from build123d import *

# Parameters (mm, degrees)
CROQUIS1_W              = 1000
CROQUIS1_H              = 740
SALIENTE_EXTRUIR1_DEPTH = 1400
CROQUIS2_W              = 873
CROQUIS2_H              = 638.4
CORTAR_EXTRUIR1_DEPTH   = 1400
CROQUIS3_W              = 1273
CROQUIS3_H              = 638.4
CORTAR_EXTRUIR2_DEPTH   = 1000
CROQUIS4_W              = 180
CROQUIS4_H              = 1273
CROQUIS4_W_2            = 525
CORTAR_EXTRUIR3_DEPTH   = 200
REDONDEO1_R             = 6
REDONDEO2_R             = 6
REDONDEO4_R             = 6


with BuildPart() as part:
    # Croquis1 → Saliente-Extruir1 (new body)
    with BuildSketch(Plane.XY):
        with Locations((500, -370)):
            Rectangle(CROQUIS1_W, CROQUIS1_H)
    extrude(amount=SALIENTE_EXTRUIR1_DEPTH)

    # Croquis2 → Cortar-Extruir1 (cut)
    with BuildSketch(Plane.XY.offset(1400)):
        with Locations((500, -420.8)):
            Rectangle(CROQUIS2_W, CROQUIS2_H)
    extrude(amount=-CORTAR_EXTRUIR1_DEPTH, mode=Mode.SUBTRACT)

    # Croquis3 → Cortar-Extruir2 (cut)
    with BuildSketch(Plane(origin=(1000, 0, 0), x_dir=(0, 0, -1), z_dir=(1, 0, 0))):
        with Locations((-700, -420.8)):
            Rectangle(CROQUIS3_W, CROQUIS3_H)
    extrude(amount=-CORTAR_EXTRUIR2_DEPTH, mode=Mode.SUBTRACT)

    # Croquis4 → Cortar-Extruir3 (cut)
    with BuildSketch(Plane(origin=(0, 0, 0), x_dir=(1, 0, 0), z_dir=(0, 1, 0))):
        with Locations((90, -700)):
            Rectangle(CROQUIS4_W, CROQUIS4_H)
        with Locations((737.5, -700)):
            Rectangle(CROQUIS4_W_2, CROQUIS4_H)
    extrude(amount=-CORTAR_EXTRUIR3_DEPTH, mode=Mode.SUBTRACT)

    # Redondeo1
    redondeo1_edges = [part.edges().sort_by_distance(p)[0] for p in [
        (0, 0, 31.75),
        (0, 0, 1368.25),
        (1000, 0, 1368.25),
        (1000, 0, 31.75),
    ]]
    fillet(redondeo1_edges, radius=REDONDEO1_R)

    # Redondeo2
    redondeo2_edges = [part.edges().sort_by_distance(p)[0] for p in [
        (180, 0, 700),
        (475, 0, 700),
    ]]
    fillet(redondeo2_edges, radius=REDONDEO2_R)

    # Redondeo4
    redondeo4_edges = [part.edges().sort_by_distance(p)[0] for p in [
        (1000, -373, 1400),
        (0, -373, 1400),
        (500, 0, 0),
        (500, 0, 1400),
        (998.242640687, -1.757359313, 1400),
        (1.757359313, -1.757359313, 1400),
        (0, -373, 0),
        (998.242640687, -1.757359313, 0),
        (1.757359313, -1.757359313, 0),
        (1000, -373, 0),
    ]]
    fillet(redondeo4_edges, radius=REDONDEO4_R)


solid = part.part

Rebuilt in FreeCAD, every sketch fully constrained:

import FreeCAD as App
import Part
import Sketcher

V = App.Vector
Q = App.Units.Quantity


def edges_at(feature, points):
    """Names of the edges that pass closest to the given points."""
    edges = feature.Shape.Edges
    near = lambda p: min(range(len(edges)), key=lambda i: edges[i].distToShape(Part.Vertex(*p))[0])
    return sorted({f"Edge{near(p) + 1}" for p in points})

doc = App.newDocument("Part")
params = doc.addObject("Spreadsheet::Sheet", "Params")
for row, (alias, value) in enumerate([
    ("sketch1_width", "1000 mm"),
    ("sketch1_height", "740 mm"),
    ("pad1_length", "1400 mm"),
    ("sketch2_width", "873 mm"),
    ("sketch2_height", "638.4 mm"),
    ("pocket1_length", "1400 mm"),
    ("sketch3_height", "1273 mm"),
    ("sketch3_width", "638.4 mm"),
    ("pocket2_length", "1000 mm"),
    ("sketch4_width", "180 mm"),
    ("sketch4_width2", "525 mm"),
    ("sketch4_height", "1273 mm"),
    ("pocket3_length", "200 mm"),
    ("fillet_radius", "6 mm"),
    ("fillet2_radius", "6 mm"),
    ("fillet3_radius", "6 mm"),
], start=1):
    params.set(f"A{row}", alias)
    params.set(f"B{row}", "=" + value)
    params.setAlias(f"B{row}", alias)

body = doc.addObject("PartDesign::Body", "Body")

sketch1 = body.newObject("Sketcher::SketchObject", "Sketch")
sketch1.AttachmentSupport = (doc.getObject("XY_Plane"), [""])
sketch1.MapMode = "FlatFace"
sketch1.addGeometry(Part.LineSegment(V(0, 0, 0), V(0, -740, 0)), False)
sketch1.addGeometry(Part.LineSegment(V(0, -740, 0), V(1000, -740, 0)), False)
sketch1.addGeometry(Part.LineSegment(V(1000, -740, 0), V(1000, 0, 0)), False)
sketch1.addGeometry(Part.LineSegment(V(1000, 0, 0), V(0, 0, 0)), False)
sketch1.addConstraint(Sketcher.Constraint("Coincident", 0, 2, 1, 1))
sketch1.addConstraint(Sketcher.Constraint("Coincident", 1, 2, 2, 1))
sketch1.addConstraint(Sketcher.Constraint("Coincident", 2, 2, 3, 1))
sketch1.addConstraint(Sketcher.Constraint("Coincident", 3, 2, 0, 1))
sketch1.addConstraint(Sketcher.Constraint("Vertical", 0))
sketch1.addConstraint(Sketcher.Constraint("Horizontal", 1))
sketch1.addConstraint(Sketcher.Constraint("Vertical", 2))
sketch1.addConstraint(Sketcher.Constraint("Horizontal", 3))
sketch1.addConstraint(Sketcher.Constraint("Coincident", 3, 2, -1, 1))
sketch1.addConstraint(Sketcher.Constraint("DistanceX", 1, 1, 1, 2, Q("1000 mm")))
sketch1.addConstraint(Sketcher.Constraint("DistanceY", 0, 2, 0, 1, Q("740 mm")))
sketch1.setExpression("Constraints[9]", "Params.sketch1_width")
sketch1.setExpression("Constraints[10]", "Params.sketch1_height")
pad1 = body.newObject("PartDesign::Pad", "Pad")
pad1.Profile = sketch1
pad1.setExpression("Length", "Params.pad1_length")

sketch2 = body.newObject("Sketcher::SketchObject", "Sketch001")
sketch2.AttachmentSupport = (doc.getObject("XY_Plane"), [""])
sketch2.MapMode = "FlatFace"
sketch2.AttachmentOffset = App.Placement(V(0, 0, 1400), App.Rotation())
sketch2.addGeometry(Part.LineSegment(V(63.5, -101.6, 0), V(63.5, -740, 0)), False)
sketch2.addGeometry(Part.LineSegment(V(63.5, -740, 0), V(936.5, -740, 0)), False)
sketch2.addGeometry(Part.LineSegment(V(936.5, -740, 0), V(936.5, -101.6, 0)), False)
sketch2.addGeometry(Part.LineSegment(V(936.5, -101.6, 0), V(63.5, -101.6, 0)), False)
sketch2.addConstraint(Sketcher.Constraint("Coincident", 0, 2, 1, 1))
sketch2.addConstraint(Sketcher.Constraint("Coincident", 1, 2, 2, 1))
sketch2.addConstraint(Sketcher.Constraint("Coincident", 2, 2, 3, 1))
sketch2.addConstraint(Sketcher.Constraint("Coincident", 3, 2, 0, 1))
sketch2.addConstraint(Sketcher.Constraint("Vertical", 0))
sketch2.addConstraint(Sketcher.Constraint("Horizontal", 1))
sketch2.addConstraint(Sketcher.Constraint("Vertical", 2))
sketch2.addConstraint(Sketcher.Constraint("Horizontal", 3))
sketch2.addConstraint(Sketcher.Constraint("DistanceX", 1, 1, 1, 2, Q("873 mm")))
sketch2.addConstraint(Sketcher.Constraint("DistanceY", 0, 2, 0, 1, Q("638.4 mm")))
sketch2.addConstraint(Sketcher.Constraint("DistanceY", 0, 2, -1, 1, Q("740 mm")))
sketch2.addConstraint(Sketcher.Constraint("DistanceX", -1, 1, 0, 2, Q("63.5 mm")))
sketch2.setExpression("Constraints[8]", "Params.sketch2_width")
sketch2.setExpression("Constraints[9]", "Params.sketch2_height")
pocket1 = body.newObject("PartDesign::Pocket", "Pocket")
pocket1.Profile = sketch2
pocket1.setExpression("Length", "Params.pocket1_length")

sketch3 = body.newObject("Sketcher::SketchObject", "Sketch002")
sketch3.AttachmentSupport = (doc.getObject("YZ_Plane"), [""])
sketch3.MapMode = "FlatFace"
sketch3.AttachmentOffset = App.Placement(V(0, 0, 1000), App.Rotation())
sketch3.addGeometry(Part.LineSegment(V(-101.6, 1336.5, 0), V(-740, 1336.5, 0)), False)
sketch3.addGeometry(Part.LineSegment(V(-740, 1336.5, 0), V(-740, 63.5, 0)), False)
sketch3.addGeometry(Part.LineSegment(V(-740, 63.5, 0), V(-101.6, 63.5, 0)), False)
sketch3.addGeometry(Part.LineSegment(V(-101.6, 63.5, 0), V(-101.6, 1336.5, 0)), False)
sketch3.addConstraint(Sketcher.Constraint("Coincident", 0, 2, 1, 1))
sketch3.addConstraint(Sketcher.Constraint("Coincident", 1, 2, 2, 1))
sketch3.addConstraint(Sketcher.Constraint("Coincident", 2, 2, 3, 1))
sketch3.addConstraint(Sketcher.Constraint("Coincident", 3, 2, 0, 1))
sketch3.addConstraint(Sketcher.Constraint("Horizontal", 0))
sketch3.addConstraint(Sketcher.Constraint("Vertical", 1))
sketch3.addConstraint(Sketcher.Constraint("Horizontal", 2))
sketch3.addConstraint(Sketcher.Constraint("Vertical", 3))
sketch3.addConstraint(Sketcher.Constraint("DistanceY", 1, 2, 1, 1, Q("1273 mm")))
sketch3.addConstraint(Sketcher.Constraint("DistanceX", 0, 2, 0, 1, Q("638.4 mm")))
sketch3.addConstraint(Sketcher.Constraint("DistanceX", 0, 2, -1, 1, Q("740 mm")))
sketch3.addConstraint(Sketcher.Constraint("DistanceY", -1, 1, 0, 2, Q("1336.5 mm")))
sketch3.setExpression("Constraints[8]", "Params.sketch3_height")
sketch3.setExpression("Constraints[9]", "Params.sketch3_width")
pocket2 = body.newObject("PartDesign::Pocket", "Pocket001")
pocket2.Profile = sketch3
pocket2.setExpression("Length", "Params.pocket2_length")

sketch4 = body.newObject("Sketcher::SketchObject", "Sketch003")
sketch4.AttachmentSupport = (doc.getObject("XZ_Plane"), [""])
sketch4.MapMode = "FlatFace"
sketch4.addGeometry(Part.LineSegment(V(0, 63.5, 0), V(0, 1336.5, 0)), False)
sketch4.addGeometry(Part.LineSegment(V(0, 1336.5, 0), V(180, 1336.5, 0)), False)
sketch4.addGeometry(Part.LineSegment(V(180, 1336.5, 0), V(180, 63.5, 0)), False)
sketch4.addGeometry(Part.LineSegment(V(180, 63.5, 0), V(0, 63.5, 0)), False)
sketch4.addGeometry(Part.LineSegment(V(475, 63.5, 0), V(475, 1336.5, 0)), False)
sketch4.addGeometry(Part.LineSegment(V(475, 1336.5, 0), V(1000, 1336.5, 0)), False)
sketch4.addGeometry(Part.LineSegment(V(1000, 1336.5, 0), V(1000, 63.5, 0)), False)
sketch4.addGeometry(Part.LineSegment(V(1000, 63.5, 0), V(475, 63.5, 0)), False)
sketch4.addConstraint(Sketcher.Constraint("Coincident", 0, 2, 1, 1))
sketch4.addConstraint(Sketcher.Constraint("Coincident", 1, 2, 2, 1))
sketch4.addConstraint(Sketcher.Constraint("Coincident", 2, 2, 3, 1))
sketch4.addConstraint(Sketcher.Constraint("Coincident", 3, 2, 0, 1))
sketch4.addConstraint(Sketcher.Constraint("Coincident", 4, 2, 5, 1))
sketch4.addConstraint(Sketcher.Constraint("Coincident", 5, 2, 6, 1))
sketch4.addConstraint(Sketcher.Constraint("Coincident", 6, 2, 7, 1))
sketch4.addConstraint(Sketcher.Constraint("Coincident", 7, 2, 4, 1))
sketch4.addConstraint(Sketcher.Constraint("Vertical", 0))
sketch4.addConstraint(Sketcher.Constraint("Horizontal", 1))
sketch4.addConstraint(Sketcher.Constraint("Vertical", 2))
sketch4.addConstraint(Sketcher.Constraint("Horizontal", 3))
sketch4.addConstraint(Sketcher.Constraint("Vertical", 4))
sketch4.addConstraint(Sketcher.Constraint("Horizontal", 5))
sketch4.addConstraint(Sketcher.Constraint("Vertical", 6))
sketch4.addConstraint(Sketcher.Constraint("Horizontal", 7))
sketch4.addConstraint(Sketcher.Constraint("PointOnObject", 0, 2, -2))
sketch4.addConstraint(Sketcher.Constraint("Horizontal", 1, 2, 4, 2))
sketch4.addConstraint(Sketcher.Constraint("Horizontal", 3, 2, 6, 2))
sketch4.addConstraint(Sketcher.Constraint("DistanceX", 1, 1, 1, 2, Q("180 mm")))
sketch4.addConstraint(Sketcher.Constraint("DistanceX", 5, 1, 5, 2, Q("525 mm")))
sketch4.addConstraint(Sketcher.Constraint("DistanceY", 0, 1, 0, 2, Q("1273 mm")))
sketch4.addConstraint(Sketcher.Constraint("DistanceX", -1, 1, 4, 2, Q("475 mm")))
sketch4.addConstraint(Sketcher.Constraint("DistanceY", -1, 1, 0, 2, Q("1336.5 mm")))
sketch4.setExpression("Constraints[19]", "Params.sketch4_width")
sketch4.setExpression("Constraints[20]", "Params.sketch4_width2")
sketch4.setExpression("Constraints[21]", "Params.sketch4_height")
pocket3 = body.newObject("PartDesign::Pocket", "Pocket002")
pocket3.Profile = sketch4
pocket3.setExpression("Length", "Params.pocket3_length")
pocket3.Reversed = True
doc.recompute()

fillet = body.newObject("PartDesign::Fillet", "Fillet")
fillet.Base = (pocket3, edges_at(pocket3, [
    (0, 0, 31.75),
    (0, 0, 1368.25),
    (1000, 0, 1368.25),
    (1000, 0, 31.75),
]))
fillet.setExpression("Radius", "Params.fillet_radius")
doc.recompute()

fillet2 = body.newObject("PartDesign::Fillet", "Fillet001")
fillet2.Base = (fillet, edges_at(fillet, [(180, 0, 700), (475, 0, 700)]))
fillet2.setExpression("Radius", "Params.fillet2_radius")
doc.recompute()

fillet3 = body.newObject("PartDesign::Fillet", "Fillet002")
fillet3.Base = (fillet2, edges_at(fillet2, [
    (1000, -373, 1400),
    (0, -373, 1400),
    (500, 0, 0),
    (500, 0, 1400),
    (998.243, -1.757, 1400),
    (1.757, -1.757, 1400),
    (0, -373, 0),
    (998.243, -1.757, 0),
    (1.757, -1.757, 0),
    (1000, -373, 0),
]))
fillet3.setExpression("Radius", "Params.fillet3_radius")

doc.recompute()
